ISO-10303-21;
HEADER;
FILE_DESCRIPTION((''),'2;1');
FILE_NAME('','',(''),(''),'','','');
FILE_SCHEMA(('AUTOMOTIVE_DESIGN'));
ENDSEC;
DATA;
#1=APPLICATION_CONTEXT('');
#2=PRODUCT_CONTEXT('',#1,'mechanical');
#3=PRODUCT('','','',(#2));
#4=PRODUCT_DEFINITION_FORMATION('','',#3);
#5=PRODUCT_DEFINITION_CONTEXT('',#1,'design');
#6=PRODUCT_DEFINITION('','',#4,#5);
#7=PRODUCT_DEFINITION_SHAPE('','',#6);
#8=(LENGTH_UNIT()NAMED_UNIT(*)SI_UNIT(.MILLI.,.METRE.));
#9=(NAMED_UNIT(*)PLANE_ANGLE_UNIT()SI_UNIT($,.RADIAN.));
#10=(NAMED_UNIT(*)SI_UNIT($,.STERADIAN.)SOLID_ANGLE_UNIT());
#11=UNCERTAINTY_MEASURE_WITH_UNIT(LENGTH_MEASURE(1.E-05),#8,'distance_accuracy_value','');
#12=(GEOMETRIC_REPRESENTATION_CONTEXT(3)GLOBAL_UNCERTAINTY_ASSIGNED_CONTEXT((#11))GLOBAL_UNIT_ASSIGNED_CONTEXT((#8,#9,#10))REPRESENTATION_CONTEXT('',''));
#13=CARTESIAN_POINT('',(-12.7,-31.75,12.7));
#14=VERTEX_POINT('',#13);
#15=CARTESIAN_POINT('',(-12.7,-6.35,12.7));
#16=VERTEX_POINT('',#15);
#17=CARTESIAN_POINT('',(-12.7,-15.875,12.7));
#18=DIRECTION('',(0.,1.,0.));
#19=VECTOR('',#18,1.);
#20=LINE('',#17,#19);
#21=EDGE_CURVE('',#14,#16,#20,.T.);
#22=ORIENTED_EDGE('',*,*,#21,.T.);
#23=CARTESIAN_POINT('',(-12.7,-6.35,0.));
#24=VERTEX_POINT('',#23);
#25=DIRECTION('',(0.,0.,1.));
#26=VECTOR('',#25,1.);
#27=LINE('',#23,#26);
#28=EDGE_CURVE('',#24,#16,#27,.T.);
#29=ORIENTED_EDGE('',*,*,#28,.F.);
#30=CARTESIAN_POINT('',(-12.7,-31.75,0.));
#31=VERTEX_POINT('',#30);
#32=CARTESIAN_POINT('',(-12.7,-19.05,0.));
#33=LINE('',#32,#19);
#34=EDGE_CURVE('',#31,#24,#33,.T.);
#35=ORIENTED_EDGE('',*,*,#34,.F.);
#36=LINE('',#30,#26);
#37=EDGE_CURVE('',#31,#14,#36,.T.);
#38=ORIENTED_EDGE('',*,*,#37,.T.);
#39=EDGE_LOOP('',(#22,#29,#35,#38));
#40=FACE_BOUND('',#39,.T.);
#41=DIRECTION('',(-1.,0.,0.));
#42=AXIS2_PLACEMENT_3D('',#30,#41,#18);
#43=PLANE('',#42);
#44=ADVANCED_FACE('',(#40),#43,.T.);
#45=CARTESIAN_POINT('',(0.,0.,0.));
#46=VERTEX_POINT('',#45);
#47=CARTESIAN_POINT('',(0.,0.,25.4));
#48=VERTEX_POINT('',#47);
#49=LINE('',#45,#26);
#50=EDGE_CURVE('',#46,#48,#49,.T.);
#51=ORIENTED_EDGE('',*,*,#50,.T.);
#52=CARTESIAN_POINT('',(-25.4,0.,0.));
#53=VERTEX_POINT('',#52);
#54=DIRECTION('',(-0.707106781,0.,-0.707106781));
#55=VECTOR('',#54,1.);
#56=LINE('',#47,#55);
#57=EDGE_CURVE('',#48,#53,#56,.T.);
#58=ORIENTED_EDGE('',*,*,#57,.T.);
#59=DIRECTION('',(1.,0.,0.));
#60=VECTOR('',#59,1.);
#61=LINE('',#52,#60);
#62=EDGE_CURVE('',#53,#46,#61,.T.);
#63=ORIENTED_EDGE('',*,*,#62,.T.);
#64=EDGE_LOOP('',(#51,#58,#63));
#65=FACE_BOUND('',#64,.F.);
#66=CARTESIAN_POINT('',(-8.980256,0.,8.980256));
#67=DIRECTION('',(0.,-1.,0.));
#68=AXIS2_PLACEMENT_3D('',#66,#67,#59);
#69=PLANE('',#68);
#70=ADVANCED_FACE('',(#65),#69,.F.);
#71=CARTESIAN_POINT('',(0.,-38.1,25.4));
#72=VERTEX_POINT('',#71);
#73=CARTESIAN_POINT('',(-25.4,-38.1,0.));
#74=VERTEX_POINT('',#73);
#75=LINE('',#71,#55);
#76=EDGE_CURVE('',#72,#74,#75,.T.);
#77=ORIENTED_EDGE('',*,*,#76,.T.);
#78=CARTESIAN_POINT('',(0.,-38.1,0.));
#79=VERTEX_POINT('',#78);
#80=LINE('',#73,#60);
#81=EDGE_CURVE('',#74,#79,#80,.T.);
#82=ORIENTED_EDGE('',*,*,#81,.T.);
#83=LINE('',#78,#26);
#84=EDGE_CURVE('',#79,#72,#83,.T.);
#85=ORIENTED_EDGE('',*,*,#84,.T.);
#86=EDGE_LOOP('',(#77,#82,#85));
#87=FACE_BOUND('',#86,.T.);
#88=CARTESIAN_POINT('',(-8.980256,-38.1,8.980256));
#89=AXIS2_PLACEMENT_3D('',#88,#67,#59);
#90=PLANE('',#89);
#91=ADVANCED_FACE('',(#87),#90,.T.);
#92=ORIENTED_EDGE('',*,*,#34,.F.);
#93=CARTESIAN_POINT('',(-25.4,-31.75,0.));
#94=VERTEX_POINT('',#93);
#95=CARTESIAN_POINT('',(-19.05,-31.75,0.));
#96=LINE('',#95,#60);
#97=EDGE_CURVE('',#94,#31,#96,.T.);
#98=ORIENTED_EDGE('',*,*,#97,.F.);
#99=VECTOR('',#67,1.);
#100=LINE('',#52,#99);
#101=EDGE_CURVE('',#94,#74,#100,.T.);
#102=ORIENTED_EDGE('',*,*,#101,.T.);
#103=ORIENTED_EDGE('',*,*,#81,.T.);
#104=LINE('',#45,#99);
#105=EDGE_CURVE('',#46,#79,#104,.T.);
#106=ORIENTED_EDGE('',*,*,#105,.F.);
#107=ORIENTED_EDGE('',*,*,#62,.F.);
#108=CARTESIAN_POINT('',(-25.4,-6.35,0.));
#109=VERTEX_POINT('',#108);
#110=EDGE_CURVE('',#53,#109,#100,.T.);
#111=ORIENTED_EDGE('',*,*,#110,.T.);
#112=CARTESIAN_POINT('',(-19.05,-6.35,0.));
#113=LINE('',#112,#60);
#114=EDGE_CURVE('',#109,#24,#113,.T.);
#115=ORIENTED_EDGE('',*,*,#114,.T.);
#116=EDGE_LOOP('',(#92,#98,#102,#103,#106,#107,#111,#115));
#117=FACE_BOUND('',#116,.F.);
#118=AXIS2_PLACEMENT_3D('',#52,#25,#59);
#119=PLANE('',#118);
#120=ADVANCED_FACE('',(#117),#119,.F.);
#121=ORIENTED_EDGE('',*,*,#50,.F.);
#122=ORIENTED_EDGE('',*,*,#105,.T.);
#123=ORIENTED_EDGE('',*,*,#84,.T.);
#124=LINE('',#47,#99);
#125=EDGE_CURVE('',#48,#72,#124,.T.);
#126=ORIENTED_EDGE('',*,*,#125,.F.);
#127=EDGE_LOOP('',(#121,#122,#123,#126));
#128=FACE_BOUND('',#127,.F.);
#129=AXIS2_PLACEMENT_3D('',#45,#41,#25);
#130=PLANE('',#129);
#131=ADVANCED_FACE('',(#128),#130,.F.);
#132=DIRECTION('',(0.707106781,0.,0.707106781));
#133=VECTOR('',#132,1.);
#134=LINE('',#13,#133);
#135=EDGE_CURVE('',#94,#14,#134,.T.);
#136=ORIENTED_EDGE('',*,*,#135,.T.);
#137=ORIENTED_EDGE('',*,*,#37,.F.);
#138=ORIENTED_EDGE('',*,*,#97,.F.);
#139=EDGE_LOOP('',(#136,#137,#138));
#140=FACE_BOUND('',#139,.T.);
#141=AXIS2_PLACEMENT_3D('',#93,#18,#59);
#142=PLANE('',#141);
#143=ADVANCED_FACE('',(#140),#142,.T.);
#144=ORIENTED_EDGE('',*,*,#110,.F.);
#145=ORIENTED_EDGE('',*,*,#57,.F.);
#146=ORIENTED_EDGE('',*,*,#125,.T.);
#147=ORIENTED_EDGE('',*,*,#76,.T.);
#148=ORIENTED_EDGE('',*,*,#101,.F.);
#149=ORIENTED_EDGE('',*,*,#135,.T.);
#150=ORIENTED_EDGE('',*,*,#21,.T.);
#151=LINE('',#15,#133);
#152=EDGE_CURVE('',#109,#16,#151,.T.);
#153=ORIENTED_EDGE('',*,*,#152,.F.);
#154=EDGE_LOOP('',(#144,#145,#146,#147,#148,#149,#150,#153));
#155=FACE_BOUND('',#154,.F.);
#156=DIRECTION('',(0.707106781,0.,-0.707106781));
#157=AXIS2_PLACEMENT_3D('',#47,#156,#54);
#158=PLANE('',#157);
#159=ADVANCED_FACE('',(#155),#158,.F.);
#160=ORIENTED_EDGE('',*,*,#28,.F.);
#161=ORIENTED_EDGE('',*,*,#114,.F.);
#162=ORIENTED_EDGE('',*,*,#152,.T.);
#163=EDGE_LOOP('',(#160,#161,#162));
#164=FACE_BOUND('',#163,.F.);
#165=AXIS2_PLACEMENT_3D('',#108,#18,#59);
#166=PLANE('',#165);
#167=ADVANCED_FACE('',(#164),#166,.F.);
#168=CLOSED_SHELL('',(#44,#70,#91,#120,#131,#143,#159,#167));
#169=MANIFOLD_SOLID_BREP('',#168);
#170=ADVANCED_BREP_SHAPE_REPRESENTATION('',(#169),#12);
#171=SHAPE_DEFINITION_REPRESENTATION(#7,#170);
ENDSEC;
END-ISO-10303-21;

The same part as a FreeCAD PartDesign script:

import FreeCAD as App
import Part
import Sketcher
Q = App.Units.Quantity

doc = App.newDocument("Part")
params = doc.addObject("Spreadsheet::Sheet", "Params")
for row, (alias, value) in enumerate([
    ("sketch1_width", "1 in"),
    ("pad1_length", "1.5 in"),
    ("sketch2_height", "1 in"),
    ("sketch2_width", "0.5 in"),
], start=1):
    params.set(f"A{row}", alias)
    params.set(f"B{row}", "=" + value)
    params.setAlias(f"B{row}", alias)

body = doc.addObject("PartDesign::Body", "Body")

sketch1 = body.newObject("Sketcher::SketchObject", "Sketch")
sketch1.AttachmentSupport = (doc.getObject("XZ_Plane"), [""])
sketch1.MapMode = "FlatFace"
sketch1.addGeometry([
    Part.LineSegment(App.Vector(-25.4, 0, 0), App.Vector(0, 0, 0)),
    Part.LineSegment(App.Vector(0, 0, 0), App.Vector(0, 25.4, 0)),
    Part.LineSegment(App.Vector(0, 25.4, 0), App.Vector(-25.4, 0, 0)),
], False)
sketch1.addConstraint([
    Sketcher.Constraint("Coincident", 0, 2, 1, 1),
    Sketcher.Constraint("Coincident", 1, 2, 2, 1),
    Sketcher.Constraint("Coincident", 2, 2, 0, 1),
    Sketcher.Constraint("Horizontal", 0),
    Sketcher.Constraint("Vertical", 1),
    Sketcher.Constraint("Coincident", 0, 2, -1, 1),
    Sketcher.Constraint("Equal", 0, 1),
    Sketcher.Constraint("DistanceX", 0, 1, 0, 2, Q("1 in")),
])
sketch1.setExpression("Constraints[7]", "Params.sketch1_width")
pad1 = body.newObject("PartDesign::Pad", "Pad")
pad1.Profile = sketch1
pad1.setExpression("Length", "Params.pad1_length")

sketch2 = body.newObject("Sketcher::SketchObject", "Sketch001")
sketch2.AttachmentSupport = (doc.getObject("XY_Plane"), [""])
sketch2.MapMode = "FlatFace"
sketch2.addGeometry([
    Part.LineSegment(App.Vector(-25.4, -6.35, 0), App.Vector(-25.4, -31.75, 0)),
    Part.LineSegment(App.Vector(-25.4, -31.75, 0), App.Vector(-12.7, -31.75, 0)),
    Part.LineSegment(App.Vector(-12.7, -31.75, 0), App.Vector(-12.7, -6.35, 0)),
    Part.LineSegment(App.Vector(-12.7, -6.35, 0), App.Vector(-25.4, -6.35, 0)),
], False)
sketch2.addConstraint([
    Sketcher.Constraint("Coincident", 0, 2, 1, 1),
    Sketcher.Constraint("Coincident", 1, 2, 2, 1),
    Sketcher.Constraint("Coincident", 2, 2, 3, 1),
    Sketcher.Constraint("Coincident", 3, 2, 0, 1),
    Sketcher.Constraint("Vertical", 0),
    Sketcher.Constraint("Horizontal", 1),
    Sketcher.Constraint("Vertical", 2),
    Sketcher.Constraint("Horizontal", 3),
    Sketcher.Constraint("DistanceY", 0, 2, 0, 1, Q("1 in")),
    Sketcher.Constraint("DistanceX", 1, 1, 1, 2, Q("0.5 in")),
    Sketcher.Constraint("DistanceX", 0, 2, -1, 1, Q("1 in")),
    Sketcher.Constraint("DistanceY", 0, 2, -1, 1, Q("1.25 in")),
])
sketch2.setExpression("Constraints[8]", "Params.sketch2_height")
sketch2.setExpression("Constraints[9]", "Params.sketch2_width")
pocket1 = body.newObject("PartDesign::Pocket", "Pocket")
pocket1.Profile = sketch2
pocket1.Type = "ThroughAll"
pocket1.Reversed = True

doc.recompute()
